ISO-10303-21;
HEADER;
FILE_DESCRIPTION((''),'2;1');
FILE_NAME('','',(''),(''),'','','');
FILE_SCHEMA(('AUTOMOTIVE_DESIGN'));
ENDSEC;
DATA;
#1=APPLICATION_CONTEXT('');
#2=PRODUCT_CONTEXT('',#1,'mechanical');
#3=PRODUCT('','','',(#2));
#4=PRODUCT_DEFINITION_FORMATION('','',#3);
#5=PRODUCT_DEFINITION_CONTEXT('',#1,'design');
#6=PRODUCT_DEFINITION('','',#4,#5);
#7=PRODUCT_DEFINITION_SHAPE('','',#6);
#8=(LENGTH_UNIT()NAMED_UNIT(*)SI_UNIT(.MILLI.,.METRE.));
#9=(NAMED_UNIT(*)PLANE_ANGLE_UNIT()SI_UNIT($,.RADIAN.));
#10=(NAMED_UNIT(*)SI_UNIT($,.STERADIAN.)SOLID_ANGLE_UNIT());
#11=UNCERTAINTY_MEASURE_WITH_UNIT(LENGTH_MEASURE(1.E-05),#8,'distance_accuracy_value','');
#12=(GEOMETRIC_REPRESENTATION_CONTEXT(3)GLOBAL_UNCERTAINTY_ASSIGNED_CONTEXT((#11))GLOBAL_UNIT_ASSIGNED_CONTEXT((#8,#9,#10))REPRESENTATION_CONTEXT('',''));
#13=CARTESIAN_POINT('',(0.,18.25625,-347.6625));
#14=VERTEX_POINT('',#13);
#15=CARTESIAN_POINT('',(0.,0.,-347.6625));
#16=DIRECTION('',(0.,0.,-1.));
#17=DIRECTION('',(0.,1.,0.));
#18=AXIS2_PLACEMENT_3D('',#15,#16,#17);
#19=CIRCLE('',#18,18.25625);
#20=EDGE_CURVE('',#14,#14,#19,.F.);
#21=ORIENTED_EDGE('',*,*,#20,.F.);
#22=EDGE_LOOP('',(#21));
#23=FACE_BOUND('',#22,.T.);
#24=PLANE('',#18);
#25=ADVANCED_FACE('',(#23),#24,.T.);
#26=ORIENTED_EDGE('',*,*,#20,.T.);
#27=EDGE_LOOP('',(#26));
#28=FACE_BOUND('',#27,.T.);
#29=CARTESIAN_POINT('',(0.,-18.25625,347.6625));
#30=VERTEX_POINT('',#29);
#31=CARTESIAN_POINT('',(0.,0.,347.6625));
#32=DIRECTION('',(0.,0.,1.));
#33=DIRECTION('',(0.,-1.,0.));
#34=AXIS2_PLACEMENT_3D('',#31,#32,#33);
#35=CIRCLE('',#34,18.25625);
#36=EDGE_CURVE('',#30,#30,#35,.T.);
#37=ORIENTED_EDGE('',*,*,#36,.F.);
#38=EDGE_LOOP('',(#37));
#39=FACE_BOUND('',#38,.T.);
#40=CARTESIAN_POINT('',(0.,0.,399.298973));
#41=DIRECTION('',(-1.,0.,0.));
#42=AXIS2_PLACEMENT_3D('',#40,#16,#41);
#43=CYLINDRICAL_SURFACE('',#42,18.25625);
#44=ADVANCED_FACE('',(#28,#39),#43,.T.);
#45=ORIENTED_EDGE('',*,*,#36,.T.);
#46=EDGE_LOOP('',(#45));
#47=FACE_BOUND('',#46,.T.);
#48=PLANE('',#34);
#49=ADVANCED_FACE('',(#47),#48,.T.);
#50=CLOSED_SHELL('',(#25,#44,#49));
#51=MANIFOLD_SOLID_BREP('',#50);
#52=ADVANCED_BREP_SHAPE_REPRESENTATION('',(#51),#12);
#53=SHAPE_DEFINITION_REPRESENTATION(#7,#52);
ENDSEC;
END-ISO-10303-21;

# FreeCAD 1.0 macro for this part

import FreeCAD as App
import Part
import Sketcher
from FreeCAD import Vector
Q = App.Units.Quantity

doc = App.newDocument("Part")
params = doc.addObject("Spreadsheet::Sheet", "Params")
for row, (alias, value) in enumerate([
    ("sketch1_diameter", "1.4375 in"),
    ("pad1_length", "13.6875 in"),
    ("pad1_length2", "13.6875 in"),
], start=1):
    params.set(f"A{row}", alias)
    params.set(f"B{row}", "=" + value)
    params.setAlias(f"B{row}", alias)

body = doc.addObject("PartDesign::Body", "Body")

# Sketch on XY plane
sketch1 = body.newObject("Sketcher::SketchObject", "Sketch")
sketch1.AttachmentSupport = (doc.getObject("XY_Plane"), [""])
sketch1.MapMode = "FlatFace"
sketch1.addGeometry(Part.Circle(Vector(0, 0, 0), Vector(0, 0, 1), 18.25625), False)
sketch1.addConstraint([
    Sketcher.Constraint("Coincident", 0, 3, -1, 1),
    Sketcher.Constraint("Diameter", 0, Q("1.4375 in")),
])
sketch1.setExpression("Constraints[1]", "Params.sketch1_diameter")
pad1 = body.newObject("PartDesign::Pad", "Pad")
pad1.Profile = sketch1
pad1.Type = "TwoLengths"
pad1.setExpression("Length", "Params.pad1_length")
pad1.setExpression("Length2", "Params.pad1_length2")

doc.recompute()
